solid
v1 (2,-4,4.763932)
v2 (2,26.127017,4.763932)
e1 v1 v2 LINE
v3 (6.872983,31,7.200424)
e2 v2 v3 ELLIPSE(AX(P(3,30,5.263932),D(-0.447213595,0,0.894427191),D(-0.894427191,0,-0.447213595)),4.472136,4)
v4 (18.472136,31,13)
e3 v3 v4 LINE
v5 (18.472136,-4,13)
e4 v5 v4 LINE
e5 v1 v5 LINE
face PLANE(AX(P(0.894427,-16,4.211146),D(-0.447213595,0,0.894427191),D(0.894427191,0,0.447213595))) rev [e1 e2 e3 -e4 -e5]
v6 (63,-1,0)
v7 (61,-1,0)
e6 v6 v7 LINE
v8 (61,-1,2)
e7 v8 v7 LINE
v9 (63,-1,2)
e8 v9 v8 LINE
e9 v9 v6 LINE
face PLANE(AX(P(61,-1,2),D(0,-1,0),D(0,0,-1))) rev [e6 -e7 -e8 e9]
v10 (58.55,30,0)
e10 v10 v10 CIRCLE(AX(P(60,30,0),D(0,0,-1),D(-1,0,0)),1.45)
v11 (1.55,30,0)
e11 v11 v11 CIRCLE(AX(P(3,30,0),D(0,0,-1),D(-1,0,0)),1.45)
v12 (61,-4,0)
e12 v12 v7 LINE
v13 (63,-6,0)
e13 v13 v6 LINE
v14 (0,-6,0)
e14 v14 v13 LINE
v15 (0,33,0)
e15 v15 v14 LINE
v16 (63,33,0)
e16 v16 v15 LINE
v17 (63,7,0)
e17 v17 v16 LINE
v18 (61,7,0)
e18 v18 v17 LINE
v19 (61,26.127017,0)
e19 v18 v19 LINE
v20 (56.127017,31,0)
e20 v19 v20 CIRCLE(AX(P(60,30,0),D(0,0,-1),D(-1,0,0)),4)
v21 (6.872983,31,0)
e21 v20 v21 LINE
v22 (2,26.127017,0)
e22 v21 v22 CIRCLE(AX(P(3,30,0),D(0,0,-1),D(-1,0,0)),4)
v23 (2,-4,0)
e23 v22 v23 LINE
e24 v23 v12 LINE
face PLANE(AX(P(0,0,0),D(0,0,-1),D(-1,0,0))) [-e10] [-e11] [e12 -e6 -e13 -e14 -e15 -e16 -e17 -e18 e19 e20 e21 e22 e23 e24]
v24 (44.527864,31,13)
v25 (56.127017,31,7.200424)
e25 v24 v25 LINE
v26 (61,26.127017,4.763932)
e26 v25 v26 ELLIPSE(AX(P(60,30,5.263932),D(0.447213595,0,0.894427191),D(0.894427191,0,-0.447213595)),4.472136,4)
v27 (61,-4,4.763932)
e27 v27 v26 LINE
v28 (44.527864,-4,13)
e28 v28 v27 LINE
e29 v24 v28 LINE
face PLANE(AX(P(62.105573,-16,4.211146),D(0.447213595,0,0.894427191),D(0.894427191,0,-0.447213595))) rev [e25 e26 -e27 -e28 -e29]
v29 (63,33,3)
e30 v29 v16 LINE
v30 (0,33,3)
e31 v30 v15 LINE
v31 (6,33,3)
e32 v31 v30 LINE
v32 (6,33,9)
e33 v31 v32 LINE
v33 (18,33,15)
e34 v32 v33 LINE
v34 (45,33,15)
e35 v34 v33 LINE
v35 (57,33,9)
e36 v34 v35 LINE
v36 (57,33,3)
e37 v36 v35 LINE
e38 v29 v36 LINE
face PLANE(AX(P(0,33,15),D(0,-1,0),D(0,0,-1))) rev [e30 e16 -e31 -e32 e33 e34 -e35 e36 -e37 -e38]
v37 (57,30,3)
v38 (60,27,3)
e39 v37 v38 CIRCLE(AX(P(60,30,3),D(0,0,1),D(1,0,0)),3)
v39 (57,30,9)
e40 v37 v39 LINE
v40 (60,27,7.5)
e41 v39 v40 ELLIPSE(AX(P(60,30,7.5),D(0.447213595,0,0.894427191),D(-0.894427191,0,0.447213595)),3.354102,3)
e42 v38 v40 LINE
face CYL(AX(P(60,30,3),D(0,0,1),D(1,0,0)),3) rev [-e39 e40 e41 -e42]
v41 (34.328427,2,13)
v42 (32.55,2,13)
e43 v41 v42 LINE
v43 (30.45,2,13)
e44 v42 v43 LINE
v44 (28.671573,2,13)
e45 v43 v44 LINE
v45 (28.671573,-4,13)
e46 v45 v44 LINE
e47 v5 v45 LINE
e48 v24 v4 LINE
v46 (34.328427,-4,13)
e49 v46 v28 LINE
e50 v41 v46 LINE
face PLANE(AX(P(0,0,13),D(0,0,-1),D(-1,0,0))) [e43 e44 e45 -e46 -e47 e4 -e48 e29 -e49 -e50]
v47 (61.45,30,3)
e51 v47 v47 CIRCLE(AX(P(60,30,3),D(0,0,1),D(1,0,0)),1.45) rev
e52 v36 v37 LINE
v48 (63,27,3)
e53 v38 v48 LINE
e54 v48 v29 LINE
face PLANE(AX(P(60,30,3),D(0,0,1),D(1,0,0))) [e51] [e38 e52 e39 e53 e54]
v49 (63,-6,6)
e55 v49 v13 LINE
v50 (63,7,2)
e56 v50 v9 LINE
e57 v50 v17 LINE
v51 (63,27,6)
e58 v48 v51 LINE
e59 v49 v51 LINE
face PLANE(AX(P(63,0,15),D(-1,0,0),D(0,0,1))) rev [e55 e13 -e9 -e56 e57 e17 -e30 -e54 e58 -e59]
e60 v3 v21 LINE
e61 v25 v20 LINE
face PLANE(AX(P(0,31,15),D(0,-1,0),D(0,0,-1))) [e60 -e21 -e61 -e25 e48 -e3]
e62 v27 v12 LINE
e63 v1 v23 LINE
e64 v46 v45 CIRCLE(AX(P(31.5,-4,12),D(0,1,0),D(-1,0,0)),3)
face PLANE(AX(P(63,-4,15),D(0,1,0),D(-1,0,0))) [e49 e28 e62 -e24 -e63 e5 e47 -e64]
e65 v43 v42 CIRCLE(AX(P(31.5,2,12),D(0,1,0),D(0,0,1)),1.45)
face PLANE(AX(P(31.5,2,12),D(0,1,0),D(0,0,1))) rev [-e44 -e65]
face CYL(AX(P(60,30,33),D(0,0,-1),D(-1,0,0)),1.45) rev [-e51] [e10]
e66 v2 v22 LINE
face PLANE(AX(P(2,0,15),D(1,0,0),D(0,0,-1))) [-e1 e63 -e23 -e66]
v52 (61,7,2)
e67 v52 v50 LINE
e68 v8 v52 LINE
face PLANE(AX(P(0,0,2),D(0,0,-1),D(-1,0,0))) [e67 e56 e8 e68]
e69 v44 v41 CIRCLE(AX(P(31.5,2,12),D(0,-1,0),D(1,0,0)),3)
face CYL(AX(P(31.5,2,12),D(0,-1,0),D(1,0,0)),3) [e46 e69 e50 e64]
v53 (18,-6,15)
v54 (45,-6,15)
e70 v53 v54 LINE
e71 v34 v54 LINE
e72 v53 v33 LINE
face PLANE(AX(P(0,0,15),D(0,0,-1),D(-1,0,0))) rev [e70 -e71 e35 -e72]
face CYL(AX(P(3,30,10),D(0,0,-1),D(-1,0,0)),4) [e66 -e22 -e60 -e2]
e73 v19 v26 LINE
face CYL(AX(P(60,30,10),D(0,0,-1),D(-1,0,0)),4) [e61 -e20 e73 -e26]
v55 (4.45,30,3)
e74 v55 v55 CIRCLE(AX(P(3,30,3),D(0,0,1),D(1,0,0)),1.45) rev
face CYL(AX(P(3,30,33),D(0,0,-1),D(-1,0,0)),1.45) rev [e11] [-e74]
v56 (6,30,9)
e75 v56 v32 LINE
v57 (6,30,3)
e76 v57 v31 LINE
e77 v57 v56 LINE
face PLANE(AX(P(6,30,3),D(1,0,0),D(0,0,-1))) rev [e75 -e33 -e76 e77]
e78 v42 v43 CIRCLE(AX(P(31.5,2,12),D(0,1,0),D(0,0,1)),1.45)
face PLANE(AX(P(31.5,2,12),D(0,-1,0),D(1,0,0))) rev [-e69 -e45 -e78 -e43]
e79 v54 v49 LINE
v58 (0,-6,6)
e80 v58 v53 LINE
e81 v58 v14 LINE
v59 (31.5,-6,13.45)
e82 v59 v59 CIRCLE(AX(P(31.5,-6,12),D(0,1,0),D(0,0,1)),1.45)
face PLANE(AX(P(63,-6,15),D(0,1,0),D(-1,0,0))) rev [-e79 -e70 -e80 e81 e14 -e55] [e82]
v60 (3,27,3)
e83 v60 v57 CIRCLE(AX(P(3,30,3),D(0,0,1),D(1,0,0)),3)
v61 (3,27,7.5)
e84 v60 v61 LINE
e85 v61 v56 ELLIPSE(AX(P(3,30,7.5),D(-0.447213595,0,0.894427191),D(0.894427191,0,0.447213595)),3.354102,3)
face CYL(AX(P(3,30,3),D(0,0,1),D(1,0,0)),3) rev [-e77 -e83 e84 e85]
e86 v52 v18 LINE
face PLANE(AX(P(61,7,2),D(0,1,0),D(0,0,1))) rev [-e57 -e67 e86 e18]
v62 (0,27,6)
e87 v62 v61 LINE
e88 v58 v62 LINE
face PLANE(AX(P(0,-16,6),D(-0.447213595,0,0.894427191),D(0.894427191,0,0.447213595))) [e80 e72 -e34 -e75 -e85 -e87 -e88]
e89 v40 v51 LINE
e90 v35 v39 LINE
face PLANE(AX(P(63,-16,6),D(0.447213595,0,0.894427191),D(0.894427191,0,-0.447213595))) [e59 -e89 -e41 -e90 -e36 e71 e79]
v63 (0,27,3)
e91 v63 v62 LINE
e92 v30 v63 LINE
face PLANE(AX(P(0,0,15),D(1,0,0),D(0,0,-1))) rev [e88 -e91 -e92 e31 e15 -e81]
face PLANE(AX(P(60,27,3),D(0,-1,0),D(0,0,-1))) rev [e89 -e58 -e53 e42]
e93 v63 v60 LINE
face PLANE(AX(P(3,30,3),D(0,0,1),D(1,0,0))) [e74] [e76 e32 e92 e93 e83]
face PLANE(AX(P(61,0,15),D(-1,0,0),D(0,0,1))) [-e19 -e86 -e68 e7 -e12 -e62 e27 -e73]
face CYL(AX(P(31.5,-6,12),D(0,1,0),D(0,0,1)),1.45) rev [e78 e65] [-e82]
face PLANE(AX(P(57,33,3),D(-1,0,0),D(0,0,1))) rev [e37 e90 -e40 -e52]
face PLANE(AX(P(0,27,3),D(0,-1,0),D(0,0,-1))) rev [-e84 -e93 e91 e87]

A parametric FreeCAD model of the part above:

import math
import FreeCAD as App
import Part
import Sketcher

V = App.Vector
Q = App.Units.Quantity


def faces_at(feature, points):
    """Names of the faces that lie closest to the given points."""
    faces = feature.Shape.Faces
    near = lambda p: min(range(len(faces)), key=lambda i: faces[i].distToShape(Part.Vertex(*p))[0])
    return sorted({f"Face{near(p) + 1}" for p in points})


def add_polygon(sketch, points):
    """Adds a closed chain of lines whose ends are joined by coincident constraints."""
    first, n = sketch.GeometryCount, len(points)
    for a, b in zip(points, points[1:] + points[:1]):
        sketch.addGeometry(Part.LineSegment(App.Vector(*a, 0), App.Vector(*b, 0)), False)
    for i in range(n):
        sketch.addConstraint(Sketcher.Constraint("Coincident", first + i, 2, first + (i + 1) % n, 1))

doc = App.newDocument("Part")
params = doc.addObject("Spreadsheet::Sheet", "Params")
for row, (alias, value) in enumerate([
    ("sketch1_width", "63 mm"),
    ("sketch1_height", "39 mm"),
    ("pad1_length", "15 mm"),
    ("sketch2_width", "18 mm"),
    ("sketch2_height", "9 mm"),
    ("thickness_wall", "2 mm"),
    ("sketch3_radius", "4 mm"),
    ("sketch3_radius2", "3 mm"),
    ("pad2_length", "10 mm"),
    ("sketch4_width", "27 mm"),
    ("sketch4_width2", "63 mm"),
    ("pocket2_length", "39 mm"),
    ("sketch5_diameter", "2.9 mm"),
    ("pocket3_length", "33 mm"),
    ("sketch6_radius", "3 mm"),
    ("sketch6_width", "6 mm"),
    ("pocket4_length", "12 mm"),
    ("sketch7_width", "2 mm"),
    ("sketch7_height", "8 mm"),
    ("pocket5_length", "2 mm"),
    ("sketch8_diameter", "6 mm"),
    ("pad3_length", "8 mm"),
    ("sketch9_diameter", "2.9 mm"),
    ("pocket6_length", "8 mm"),
], start=1):
    params.set(f"A{row}", alias)
    params.set(f"B{row}", "=" + value)
    params.setAlias(f"B{row}", alias)

body = doc.addObject("PartDesign::Body", "Body")

# Sketch on XY plane
sketch1 = doc.addObject("Sketcher::SketchObject", "Sketch")
body.addObject(sketch1)
sketch1.AttachmentSupport = (doc.XY_Plane, [""])
sketch1.MapMode = "FlatFace"
add_polygon(sketch1, [(0, 33), (0, -6), (63, -6), (63, 33)])  # lines 0-3
sketch1.addConstraint(Sketcher.Constraint("Vertical", 0))
sketch1.addConstraint(Sketcher.Constraint("Horizontal", 1))
sketch1.addConstraint(Sketcher.Constraint("Vertical", 2))
sketch1.addConstraint(Sketcher.Constraint("Horizontal", 3))
sketch1.addConstraint(Sketcher.Constraint("PointOnObject", 0, 2, -2))
sketch1.addConstraint(Sketcher.Constraint("DistanceX", 1, 1, 1, 2, Q("63 mm")))
sketch1.addConstraint(Sketcher.Constraint("DistanceY", 0, 2, 0, 1, Q("39 mm")))
sketch1.addConstraint(Sketcher.Constraint("DistanceY", 0, 2, -1, 1, Q("6 mm")))
sketch1.setExpression("Constraints[9]", "Params.sketch1_width")
sketch1.setExpression("Constraints[10]", "Params.sketch1_height")
pad1 = doc.addObject("PartDesign::Pad", "Pad")
body.addObject(pad1)
pad1.Profile = sketch1
pad1.setExpression("Length", "Params.pad1_length")

# Sketch on XZ plane
sketch2 = doc.addObject("Sketcher::SketchObject", "Sketch001")
body.addObject(sketch2)
sketch2.AttachmentSupport = (doc.XZ_Plane, [""])
sketch2.MapMode = "FlatFace"
sketch2.AttachmentOffset = App.Placement(V(0, 0, 6), App.Rotation())
add_polygon(sketch2, [(0, 15), (0, 6), (18, 15)])  # lines 0-2
add_polygon(sketch2, [(63, 6), (63, 15), (45, 15)])  # lines 3-5
sketch2.addConstraint(Sketcher.Constraint("Vertical", 0))
sketch2.addConstraint(Sketcher.Constraint("Horizontal", 2))
sketch2.addConstraint(Sketcher.Constraint("Vertical", 3))
sketch2.addConstraint(Sketcher.Constraint("Horizontal", 4))
sketch2.addConstraint(Sketcher.Constraint("PointOnObject", 0, 2, -2))
sketch2.addConstraint(Sketcher.Constraint("Horizontal", 2, 2, 3, 2))
sketch2.addConstraint(Sketcher.Constraint("Horizontal", 0, 2, 5, 2))
sketch2.addConstraint(Sketcher.Constraint("Equal", 2, 4))
sketch2.addConstraint(Sketcher.Constraint("DistanceX", 2, 2, 2, 1, Q("18 mm")))
sketch2.addConstraint(Sketcher.Constraint("DistanceY", 0, 2, 0, 1, Q("9 mm")))
sketch2.addConstraint(Sketcher.Constraint("DistanceY", -1, 1, 0, 2, Q("6 mm")))
sketch2.addConstraint(Sketcher.Constraint("DistanceX", -1, 1, 3, 2, Q("63 mm")))
sketch2.setExpression("Constraints[14]", "Params.sketch2_width")
sketch2.setExpression("Constraints[15]", "Params.sketch2_height")
pocket1 = doc.addObject("PartDesign::Pocket", "Pocket")
body.addObject(pocket1)
pocket1.Profile = sketch2
pocket1.Type = "ThroughAll"
pocket1.Midplane = True
doc.recompute()

thickness = doc.addObject("PartDesign::Thickness", "Thickness")
body.addObject(thickness)
thickness.Base = (pocket1, faces_at(pocket1, [(31.5, 13.5, 0)]))
thickness.setExpression("Value", "Params.thickness_wall")
thickness.Reversed = True
thickness.Join = "Intersection"

# Sketch on XY plane
sketch3 = doc.addObject("Sketcher::SketchObject", "Sketch002")
body.addObject(sketch3)
sketch3.AttachmentSupport = (doc.XY_Plane, [""])
sketch3.MapMode = "FlatFace"
sketch3.addGeometry(Part.LineSegment(V(63, 30, 0), V(63, 27.4, 0)), False)
sketch3.addGeometry(Part.ArcOfCircle(Part.Circle(V(60, 30, 0), V(0, 0, 1), 4), math.radians(166), math.radians(319)), False)
sketch3.addGeometry(Part.LineSegment(V(56.1, 31, 0), V(57.2, 31, 0)), False)
sketch3.addGeometry(Part.ArcOfCircle(Part.Circle(V(60, 30, 0), V(0, 0, 1), 3), math.radians(0), math.radians(161)), False)
sketch3.addGeometry(Part.LineSegment(V(5.8, 31, 0), V(6.9, 31, 0)), False)
sketch3.addGeometry(Part.ArcOfCircle(Part.Circle(V(3, 30, 0), V(0, 0, 1), 4), math.radians(-104), math.radians(14)), False)
sketch3.addGeometry(Part.LineSegment(V(2, 26.1, 0), V(2, 27.2, 0)), False)
sketch3.addGeometry(Part.ArcOfCircle(Part.Circle(V(3, 30, 0), V(0, 0, 1), 3), math.radians(19), math.radians(251)), False)
sketch3.addConstraint(Sketcher.Constraint("Coincident", 0, 2, 1, 2))
sketch3.addConstraint(Sketcher.Constraint("Coincident", 1, 1, 2, 1))
sketch3.addConstraint(Sketcher.Constraint("Coincident", 2, 2, 3, 2))
sketch3.addConstraint(Sketcher.Constraint("Tangent", 3, 1, 0, 1))
sketch3.addConstraint(Sketcher.Constraint("Coincident", 4, 2, 5, 2))
sketch3.addConstraint(Sketcher.Constraint("Coincident", 5, 1, 6, 1))
sketch3.addConstraint(Sketcher.Constraint("Coincident", 6, 2, 7, 2))
sketch3.addConstraint(Sketcher.Constraint("Coincident", 7, 1, 4, 1))
sketch3.addConstraint(Sketcher.Constraint("Vertical", 0))
sketch3.addConstraint(Sketcher.Constraint("Horizontal", 2))
sketch3.addConstraint(Sketcher.Constraint("Horizontal", 4))
sketch3.addConstraint(Sketcher.Constraint("Vertical", 6))
sketch3.addConstraint(Sketcher.Constraint("Coincident", 3, 3, 1, 3))
sketch3.addConstraint(Sketcher.Constraint("Coincident", 7, 3, 5, 3))
sketch3.addConstraint(Sketcher.Constraint("Equal", 1, 5))
sketch3.addConstraint(Sketcher.Constraint("Equal", 3, 7))
sketch3.addConstraint(Sketcher.Constraint("Horizontal", 3, 3, 5, 3))
sketch3.addConstraint(Sketcher.Constraint("Horizontal", 2, 2, 4, 2))
sketch3.addConstraint(Sketcher.Constraint("Equal", 4, 6))
sketch3.addConstraint(Sketcher.Constraint("Radius", 1, Q("4 mm")))
sketch3.addConstraint(Sketcher.Constraint("Radius", 3, Q("3 mm")))
sketch3.addConstraint(Sketcher.Constraint("DistanceX", -1, 1, 1, 3, Q("60 mm")))
sketch3.addConstraint(Sketcher.Constraint("DistanceY", -1, 1, 1, 3, Q("30 mm")))
sketch3.addConstraint(Sketcher.Constraint("DistanceX", -1, 1, 5, 3, Q("3 mm")))
sketch3.addConstraint(Sketcher.Constraint("DistanceY", -1, 1, 1, 1, Q("31 mm")))
sketch3.setExpression("Constraints[19]", "Params.sketch3_radius")
sketch3.setExpression("Constraints[20]", "Params.sketch3_radius2")
pad2 = doc.addObject("PartDesign::Pad", "Pad001")
body.addObject(pad2)
pad2.Profile = sketch3
pad2.setExpression("Length", "Params.pad2_length")

# Sketch on XZ plane
sketch4 = doc.addObject("Sketcher::SketchObject", "Sketch003")
body.addObject(sketch4)
sketch4.AttachmentSupport = (doc.XZ_Plane, [""])
sketch4.MapMode = "FlatFace"
sketch4.AttachmentOffset = App.Placement(V(0, 0, 6), App.Rotation())
add_polygon(sketch4, [(0, 19), (0, 6), (18, 15), (45, 15), (63, 6), (63, 19)])  # lines 0-5
sketch4.addConstraint(Sketcher.Constraint("Vertical", 0))
sketch4.addConstraint(Sketcher.Constraint("Horizontal", 2))
sketch4.addConstraint(Sketcher.Constraint("Vertical", 4))
sketch4.addConstraint(Sketcher.Constraint("Horizontal", 5))
sketch4.addConstraint(Sketcher.Constraint("PointOnObject", 0, 2, -2))
sketch4.addConstraint(Sketcher.Constraint("Horizontal", 0, 2, 3, 2))
sketch4.addConstraint(Sketcher.Constraint("Equal", 1, 3))
sketch4.addConstraint(Sketcher.Constraint("DistanceX", 2, 1, 2, 2, Q("27 mm")))
sketch4.addConstraint(Sketcher.Constraint("DistanceX", 5, 2, 5, 1, Q("63 mm")))
sketch4.addConstraint(Sketcher.Constraint("DistanceY", -1, 1, 0, 2, Q("6 mm")))
sketch4.addConstraint(Sketcher.Constraint("DistanceY", -1, 1, 1, 2, Q("15 mm")))
sketch4.addConstraint(Sketcher.Constraint("DistanceY", 0, 2, 0, 1, Q("12.606218 mm")))
sketch4.setExpression("Constraints[13]", "Params.sketch4_width")
sketch4.setExpression("Constraints[14]", "Params.sketch4_width2")
pocket2 = doc.addObject("PartDesign::Pocket", "Pocket001")
body.addObject(pocket2)
pocket2.Profile = sketch4
pocket2.setExpression("Length", "Params.pocket2_length")

# Sketch on XY plane
sketch5 = doc.addObject("Sketcher::SketchObject", "Sketch004")
body.addObject(sketch5)
sketch5.AttachmentSupport = (doc.XY_Plane, [""])
sketch5.MapMode = "FlatFace"
sketch5.addGeometry(Part.Circle(V(60, 30, 0), V(0, 0, 1), 1.4), False)
sketch5.addGeometry(Part.Circle(V(3, 30, 0), V(0, 0, 1), 1.4), False)
sketch5.addConstraint(Sketcher.Constraint("Equal", 0, 1))
sketch5.addConstraint(Sketcher.Constraint("Horizontal", 0, 3, 1, 3))
sketch5.addConstraint(Sketcher.Constraint("Diameter", 0, Q("2.9 mm")))
sketch5.addConstraint(Sketcher.Constraint("DistanceX", -1, 1, 0, 3, Q("60 mm")))
sketch5.addConstraint(Sketcher.Constraint("DistanceY", -1, 1, 0, 3, Q("30 mm")))
sketch5.addConstraint(Sketcher.Constraint("DistanceX", -1, 1, 1, 3, Q("3 mm")))
sketch5.setExpression("Constraints[2]", "Params.sketch5_diameter")
pocket3 = doc.addObject("PartDesign::Pocket", "Pocket002")
body.addObject(pocket3)
pocket3.Profile = sketch5
pocket3.setExpression("Length", "Params.pocket3_length")
pocket3.Reversed = True

# Sketch on XY plane
sketch6 = doc.addObject("Sketcher::SketchObject", "Sketch005")
body.addObject(sketch6)
sketch6.AttachmentSupport = (doc.XY_Plane, [""])
sketch6.MapMode = "FlatFace"
sketch6.AttachmentOffset = App.Placement(V(0, 0, 15), App.Rotation())
sketch6.addGeometry(Part.LineSegment(V(6, 30, 0), V(6, 33, 0)), False)
sketch6.addGeometry(Part.LineSegment(V(6, 33, 0), V(0, 33, 0)), False)
sketch6.addGeometry(Part.LineSegment(V(0, 33, 0), V(0, 27, 0)), False)
sketch6.addGeometry(Part.LineSegment(V(0, 27, 0), V(3, 27, 0)), False)
sketch6.addGeometry(Part.ArcOfCircle(Part.Circle(V(3, 30, 0), V(0, 0, 1), 3), math.radians(-90), math.radians(0)), False)
sketch6.addGeometry(Part.LineSegment(V(60, 27, 0), V(63, 27, 0)), False)
sketch6.addGeometry(Part.LineSegment(V(63, 27, 0), V(63, 33, 0)), False)
sketch6.addGeometry(Part.LineSegment(V(63, 33, 0), V(57, 33, 0)), False)
sketch6.addGeometry(Part.LineSegment(V(57, 33, 0), V(57, 30, 0)), False)
sketch6.addGeometry(Part.ArcOfCircle(Part.Circle(V(60, 30, 0), V(0, 0, 1), 3), math.radians(180), math.radians(270)), False)
sketch6.addConstraint(Sketcher.Constraint("Coincident", 0, 2, 1, 1))
sketch6.addConstraint(Sketcher.Constraint("Coincident", 1, 2, 2, 1))
sketch6.addConstraint(Sketcher.Constraint("Coincident", 2, 2, 3, 1))
sketch6.addConstraint(Sketcher.Constraint("Tangent", 3, 2, 4, 1))
sketch6.addConstraint(Sketcher.Constraint("Tangent", 4, 2, 0, 1))
sketch6.addConstraint(Sketcher.Constraint("Coincident", 5, 2, 6, 1))
sketch6.addConstraint(Sketcher.Constraint("Coincident", 6, 2, 7, 1))
sketch6.addConstraint(Sketcher.Constraint("Coincident", 7, 2, 8, 1))
sketch6.addConstraint(Sketcher.Constraint("Tangent", 8, 2, 9, 1))
sketch6.addConstraint(Sketcher.Constraint("Tangent", 9, 2, 5, 1))
sketch6.addConstraint(Sketcher.Constraint("Vertical", 0))
sketch6.addConstraint(Sketcher.Constraint("Horizontal", 1))
sketch6.addConstraint(Sketcher.Constraint("Vertical", 2))
sketch6.addConstraint(Sketcher.Constraint("Horizontal", 3))
sketch6.addConstraint(Sketcher.Constraint("Horizontal", 5))
sketch6.addConstraint(Sketcher.Constraint("Vertical", 6))
sketch6.addConstraint(Sketcher.Constraint("Horizontal", 7))
sketch6.addConstraint(Sketcher.Constraint("Vertical", 8))
sketch6.addConstraint(Sketcher.Constraint("Equal", 4, 9))
sketch6.addConstraint(Sketcher.Constraint("PointOnObject", 1, 2, -2))
sketch6.addConstraint(Sketcher.Constraint("Horizontal", 4, 3, 9, 3))
sketch6.addConstraint(Sketcher.Constraint("Horizontal", 1, 2, 6, 2))
sketch6.addConstraint(Sketcher.Constraint("Equal", 3, 5))
sketch6.addConstraint(Sketcher.Constraint("Equal", 5, 0))
sketch6.addConstraint(Sketcher.Constraint("Radius", 4, Q("3 mm")))
sketch6.addConstraint(Sketcher.Constraint("DistanceX", 1, 2, 1, 1, Q("6 mm")))
sketch6.addConstraint(Sketcher.Constraint("DistanceY", -1, 1, 4, 3, Q("30 mm")))
sketch6.addConstraint(Sketcher.Constraint("DistanceX", -1, 1, 9, 3, Q("60 mm")))
sketch6.setExpression("Constraints[24]", "Params.sketch6_radius")
sketch6.setExpression("Constraints[25]", "Params.sketch6_width")
pocket4 = doc.addObject("PartDesign::Pocket", "Pocket003")
body.addObject(pocket4)
pocket4.Profile = sketch6
pocket4.setExpression("Length", "Params.pocket4_length")

# Sketch on XY plane
sketch7 = doc.addObject("Sketcher::SketchObject", "Sketch006")
body.addObject(sketch7)
sketch7.AttachmentSupport = (doc.XY_Plane, [""])
sketch7.MapMode = "FlatFace"
add_polygon(sketch7, [(63, 7), (63, -1), (61, -1), (61, 7)])  # lines 0-3
sketch7.addConstraint(Sketcher.Constraint("Vertical", 0))
sketch7.addConstraint(Sketcher.Constraint("Horizontal", 1))
sketch7.addConstraint(Sketcher.Constraint("Vertical", 2))
sketch7.addConstraint(Sketcher.Constraint("Horizontal", 3))
sketch7.addConstraint(Sketcher.Constraint("DistanceX", 1, 2, 1, 1, Q("2 mm")))
sketch7.addConstraint(Sketcher.Constraint("DistanceY", 0, 2, 0, 1, Q("8 mm")))
sketch7.addConstraint(Sketcher.Constraint("DistanceX", -1, 1, 0, 2, Q("63 mm")))
sketch7.addConstraint(Sketcher.Constraint("DistanceY", 0, 2, -1, 1, Q("1 mm")))
sketch7.setExpression("Constraints[8]", "Params.sketch7_width")
sketch7.setExpression("Constraints[9]", "Params.sketch7_height")
pocket5 = doc.addObject("PartDesign::Pocket", "Pocket004")
body.addObject(pocket5)
pocket5.Profile = sketch7
pocket5.setExpression("Length", "Params.pocket5_length")
pocket5.Reversed = True

# Sketch on XZ plane
sketch8 = doc.addObject("Sketcher::SketchObject", "Sketch007")
body.addObject(sketch8)
sketch8.AttachmentSupport = (doc.XZ_Plane, [""])
sketch8.MapMode = "FlatFace"
sketch8.AttachmentOffset = App.Placement(V(0, 0, 6), App.Rotation())
sketch8.addGeometry(Part.Circle(V(31.5, 12, 0), V(0, 0, 1), 3), False)
sketch8.addConstraint(Sketcher.Constraint("Diameter", 0, Q("6 mm")))
sketch8.addConstraint(Sketcher.Constraint("DistanceY", -1, 1, 0, 3, Q("12 mm")))
sketch8.addConstraint(Sketcher.Constraint("DistanceX", -1, 1, 0, 3, Q("31.5 mm")))
sketch8.setExpression("Constraints[0]", "Params.sketch8_diameter")
pad3 = doc.addObject("PartDesign::Pad", "Pad002")
body.addObject(pad3)
pad3.Profile = sketch8
pad3.setExpression("Length", "Params.pad3_length")
pad3.Reversed = True

# Sketch on XZ plane
sketch9 = doc.addObject("Sketcher::SketchObject", "Sketch008")
body.addObject(sketch9)
sketch9.AttachmentSupport = (doc.XZ_Plane, [""])
sketch9.MapMode = "FlatFace"
sketch9.AttachmentOffset = App.Placement(V(0, 0, -2), App.Rotation())
sketch9.addGeometry(Part.Circle(V(31.5, 12, 0), V(0, 0, 1), 1.4), False)
sketch9.addConstraint(Sketcher.Constraint("Diameter", 0, Q("2.9 mm")))
sketch9.addConstraint(Sketcher.Constraint("DistanceY", -1, 1, 0, 3, Q("12 mm")))
sketch9.addConstraint(Sketcher.Constraint("DistanceX", -1, 1, 0, 3, Q("31.5 mm")))
sketch9.setExpression("Constraints[0]", "Params.sketch9_diameter")
pocket6 = doc.addObject("PartDesign::Pocket", "Pocket005")
body.addObject(pocket6)
pocket6.Profile = sketch9
pocket6.setExpression("Length", "Params.pocket6_length")
pocket6.Reversed = True

doc.recompute()
